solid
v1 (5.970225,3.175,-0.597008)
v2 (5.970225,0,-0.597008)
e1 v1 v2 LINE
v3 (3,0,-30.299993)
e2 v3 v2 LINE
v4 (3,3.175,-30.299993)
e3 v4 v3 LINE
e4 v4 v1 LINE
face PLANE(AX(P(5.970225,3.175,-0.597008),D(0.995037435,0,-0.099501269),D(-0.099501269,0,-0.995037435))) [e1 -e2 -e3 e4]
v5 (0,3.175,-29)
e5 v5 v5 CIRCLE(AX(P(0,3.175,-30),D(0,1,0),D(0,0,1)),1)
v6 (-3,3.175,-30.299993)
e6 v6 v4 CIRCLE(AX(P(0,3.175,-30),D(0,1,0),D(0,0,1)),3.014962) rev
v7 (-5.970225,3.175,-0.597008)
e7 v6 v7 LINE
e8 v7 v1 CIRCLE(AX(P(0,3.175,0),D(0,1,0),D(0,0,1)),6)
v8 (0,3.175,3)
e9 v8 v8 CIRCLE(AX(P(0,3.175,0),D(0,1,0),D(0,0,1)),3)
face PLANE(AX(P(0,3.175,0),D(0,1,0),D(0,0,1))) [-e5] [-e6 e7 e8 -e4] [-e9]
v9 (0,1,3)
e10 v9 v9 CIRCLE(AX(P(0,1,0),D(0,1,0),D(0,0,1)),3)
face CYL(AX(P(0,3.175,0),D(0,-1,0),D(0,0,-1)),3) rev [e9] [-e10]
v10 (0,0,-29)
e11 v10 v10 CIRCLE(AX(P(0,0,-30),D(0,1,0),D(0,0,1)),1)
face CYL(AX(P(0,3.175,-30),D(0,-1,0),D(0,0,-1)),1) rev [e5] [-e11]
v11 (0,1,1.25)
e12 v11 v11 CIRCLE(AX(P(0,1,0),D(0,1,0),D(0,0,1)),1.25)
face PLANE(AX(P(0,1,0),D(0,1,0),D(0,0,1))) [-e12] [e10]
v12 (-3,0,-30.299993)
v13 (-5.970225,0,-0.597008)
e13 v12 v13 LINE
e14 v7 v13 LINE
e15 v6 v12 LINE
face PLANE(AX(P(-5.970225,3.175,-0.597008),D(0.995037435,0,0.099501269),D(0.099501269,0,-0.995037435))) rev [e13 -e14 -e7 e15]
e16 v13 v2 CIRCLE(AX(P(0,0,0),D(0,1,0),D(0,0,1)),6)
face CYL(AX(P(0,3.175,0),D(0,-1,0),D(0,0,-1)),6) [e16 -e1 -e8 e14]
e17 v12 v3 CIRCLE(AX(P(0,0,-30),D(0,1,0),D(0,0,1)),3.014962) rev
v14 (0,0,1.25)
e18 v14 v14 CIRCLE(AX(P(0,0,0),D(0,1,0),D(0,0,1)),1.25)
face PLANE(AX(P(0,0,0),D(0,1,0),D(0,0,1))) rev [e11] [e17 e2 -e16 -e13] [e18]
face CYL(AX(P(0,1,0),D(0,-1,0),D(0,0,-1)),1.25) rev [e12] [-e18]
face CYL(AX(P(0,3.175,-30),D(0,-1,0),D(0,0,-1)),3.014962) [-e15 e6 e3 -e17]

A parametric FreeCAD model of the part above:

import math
import FreeCAD as App
import Part
import Sketcher

V = App.Vector
Q = App.Units.Quantity

doc = App.newDocument("Part")
body = doc.addObject("PartDesign::Body", "Body")

sketch1 = doc.addObject("Sketcher::SketchObject", "Sketch")
body.addObject(sketch1)
sketch1.AttachmentSupport = (doc.XZ_Plane, [""])
sketch1.MapMode = "FlatFace"
sketch1.addGeometry(Part.LineSegment(V(-3, -30.3, 0), V(-6, -0.6, 0)), False)
sketch1.addGeometry(Part.ArcOfCircle(Part.Circle(V(0, 0, 0), V(0, 0, 1), 6), math.radians(-6), math.radians(186)), False)
sketch1.addGeometry(Part.LineSegment(V(6, -0.6, 0), V(3, -30.3, 0)), False)
sketch1.addGeometry(Part.ArcOfCircle(Part.Circle(V(0, -30, 0), V(0, 0, 1), 3), math.radians(-174), math.radians(-6)), False)
sketch1.addGeometry(Part.Circle(V(0, 0, 0), V(0, 0, 1), 3), False)
sketch1.addGeometry(Part.Circle(V(0, -30, 0), V(0, 0, 1), 1), False)
sketch1.addConstraint(Sketcher.Constraint("Tangent", 0, 2, 1, 2))
sketch1.addConstraint(Sketcher.Constraint("Tangent", 1, 1, 2, 1))
sketch1.addConstraint(Sketcher.Constraint("Tangent", 2, 2, 3, 2))
sketch1.addConstraint(Sketcher.Constraint("Tangent", 3, 1, 0, 1))
sketch1.addConstraint(Sketcher.Constraint("Coincident", 1, 3, -1, 1))
sketch1.addConstraint(Sketcher.Constraint("Coincident", 4, 3, -1, 1))
sketch1.addConstraint(Sketcher.Constraint("Coincident", 5, 3, 3, 3))
sketch1.addConstraint(Sketcher.Constraint("PointOnObject", 3, 3, -2))
sketch1.addConstraint(Sketcher.Constraint("Diameter", 4, Q("6 mm")))
sketch1.addConstraint(Sketcher.Constraint("Diameter", 5, Q("2 mm")))
sketch1.addConstraint(Sketcher.Constraint("Radius", 1, Q("6 mm")))
sketch1.addConstraint(Sketcher.Constraint("DistanceY", 3, 3, -1, 1, Q("30 mm")))
sketch1.addConstraint(Sketcher.Constraint("DistanceX", -1, 1, 2, 2, Q("3 mm")))
pad1 = doc.addObject("PartDesign::Pad", "Pad")
body.addObject(pad1)
pad1.Profile = sketch1
pad1.Length = 3.175
pad1.Reversed = True

sketch2 = doc.addObject("Sketcher::SketchObject", "Sketch001")
body.addObject(sketch2)
sketch2.AttachmentSupport = (doc.XZ_Plane, [""])
sketch2.MapMode = "FlatFace"
sketch2.addGeometry(Part.Circle(V(0, 0, 0), V(0, 0, 1), 3), False)
sketch2.addGeometry(Part.Circle(V(0, 0, 0), V(0, 0, 1), 1.2), False)
sketch2.addConstraint(Sketcher.Constraint("Coincident", 0, 3, -1, 1))
sketch2.addConstraint(Sketcher.Constraint("Coincident", 1, 3, -1, 1))
sketch2.addConstraint(Sketcher.Constraint("Diameter", 0, Q("6 mm")))
sketch2.addConstraint(Sketcher.Constraint("Diameter", 1, Q("2.5 mm")))
pad2 = doc.addObject("PartDesign::Pad", "Pad001")
body.addObject(pad2)
pad2.Profile = sketch2
pad2.Length = 1
pad2.Reversed = True

doc.recompute()
